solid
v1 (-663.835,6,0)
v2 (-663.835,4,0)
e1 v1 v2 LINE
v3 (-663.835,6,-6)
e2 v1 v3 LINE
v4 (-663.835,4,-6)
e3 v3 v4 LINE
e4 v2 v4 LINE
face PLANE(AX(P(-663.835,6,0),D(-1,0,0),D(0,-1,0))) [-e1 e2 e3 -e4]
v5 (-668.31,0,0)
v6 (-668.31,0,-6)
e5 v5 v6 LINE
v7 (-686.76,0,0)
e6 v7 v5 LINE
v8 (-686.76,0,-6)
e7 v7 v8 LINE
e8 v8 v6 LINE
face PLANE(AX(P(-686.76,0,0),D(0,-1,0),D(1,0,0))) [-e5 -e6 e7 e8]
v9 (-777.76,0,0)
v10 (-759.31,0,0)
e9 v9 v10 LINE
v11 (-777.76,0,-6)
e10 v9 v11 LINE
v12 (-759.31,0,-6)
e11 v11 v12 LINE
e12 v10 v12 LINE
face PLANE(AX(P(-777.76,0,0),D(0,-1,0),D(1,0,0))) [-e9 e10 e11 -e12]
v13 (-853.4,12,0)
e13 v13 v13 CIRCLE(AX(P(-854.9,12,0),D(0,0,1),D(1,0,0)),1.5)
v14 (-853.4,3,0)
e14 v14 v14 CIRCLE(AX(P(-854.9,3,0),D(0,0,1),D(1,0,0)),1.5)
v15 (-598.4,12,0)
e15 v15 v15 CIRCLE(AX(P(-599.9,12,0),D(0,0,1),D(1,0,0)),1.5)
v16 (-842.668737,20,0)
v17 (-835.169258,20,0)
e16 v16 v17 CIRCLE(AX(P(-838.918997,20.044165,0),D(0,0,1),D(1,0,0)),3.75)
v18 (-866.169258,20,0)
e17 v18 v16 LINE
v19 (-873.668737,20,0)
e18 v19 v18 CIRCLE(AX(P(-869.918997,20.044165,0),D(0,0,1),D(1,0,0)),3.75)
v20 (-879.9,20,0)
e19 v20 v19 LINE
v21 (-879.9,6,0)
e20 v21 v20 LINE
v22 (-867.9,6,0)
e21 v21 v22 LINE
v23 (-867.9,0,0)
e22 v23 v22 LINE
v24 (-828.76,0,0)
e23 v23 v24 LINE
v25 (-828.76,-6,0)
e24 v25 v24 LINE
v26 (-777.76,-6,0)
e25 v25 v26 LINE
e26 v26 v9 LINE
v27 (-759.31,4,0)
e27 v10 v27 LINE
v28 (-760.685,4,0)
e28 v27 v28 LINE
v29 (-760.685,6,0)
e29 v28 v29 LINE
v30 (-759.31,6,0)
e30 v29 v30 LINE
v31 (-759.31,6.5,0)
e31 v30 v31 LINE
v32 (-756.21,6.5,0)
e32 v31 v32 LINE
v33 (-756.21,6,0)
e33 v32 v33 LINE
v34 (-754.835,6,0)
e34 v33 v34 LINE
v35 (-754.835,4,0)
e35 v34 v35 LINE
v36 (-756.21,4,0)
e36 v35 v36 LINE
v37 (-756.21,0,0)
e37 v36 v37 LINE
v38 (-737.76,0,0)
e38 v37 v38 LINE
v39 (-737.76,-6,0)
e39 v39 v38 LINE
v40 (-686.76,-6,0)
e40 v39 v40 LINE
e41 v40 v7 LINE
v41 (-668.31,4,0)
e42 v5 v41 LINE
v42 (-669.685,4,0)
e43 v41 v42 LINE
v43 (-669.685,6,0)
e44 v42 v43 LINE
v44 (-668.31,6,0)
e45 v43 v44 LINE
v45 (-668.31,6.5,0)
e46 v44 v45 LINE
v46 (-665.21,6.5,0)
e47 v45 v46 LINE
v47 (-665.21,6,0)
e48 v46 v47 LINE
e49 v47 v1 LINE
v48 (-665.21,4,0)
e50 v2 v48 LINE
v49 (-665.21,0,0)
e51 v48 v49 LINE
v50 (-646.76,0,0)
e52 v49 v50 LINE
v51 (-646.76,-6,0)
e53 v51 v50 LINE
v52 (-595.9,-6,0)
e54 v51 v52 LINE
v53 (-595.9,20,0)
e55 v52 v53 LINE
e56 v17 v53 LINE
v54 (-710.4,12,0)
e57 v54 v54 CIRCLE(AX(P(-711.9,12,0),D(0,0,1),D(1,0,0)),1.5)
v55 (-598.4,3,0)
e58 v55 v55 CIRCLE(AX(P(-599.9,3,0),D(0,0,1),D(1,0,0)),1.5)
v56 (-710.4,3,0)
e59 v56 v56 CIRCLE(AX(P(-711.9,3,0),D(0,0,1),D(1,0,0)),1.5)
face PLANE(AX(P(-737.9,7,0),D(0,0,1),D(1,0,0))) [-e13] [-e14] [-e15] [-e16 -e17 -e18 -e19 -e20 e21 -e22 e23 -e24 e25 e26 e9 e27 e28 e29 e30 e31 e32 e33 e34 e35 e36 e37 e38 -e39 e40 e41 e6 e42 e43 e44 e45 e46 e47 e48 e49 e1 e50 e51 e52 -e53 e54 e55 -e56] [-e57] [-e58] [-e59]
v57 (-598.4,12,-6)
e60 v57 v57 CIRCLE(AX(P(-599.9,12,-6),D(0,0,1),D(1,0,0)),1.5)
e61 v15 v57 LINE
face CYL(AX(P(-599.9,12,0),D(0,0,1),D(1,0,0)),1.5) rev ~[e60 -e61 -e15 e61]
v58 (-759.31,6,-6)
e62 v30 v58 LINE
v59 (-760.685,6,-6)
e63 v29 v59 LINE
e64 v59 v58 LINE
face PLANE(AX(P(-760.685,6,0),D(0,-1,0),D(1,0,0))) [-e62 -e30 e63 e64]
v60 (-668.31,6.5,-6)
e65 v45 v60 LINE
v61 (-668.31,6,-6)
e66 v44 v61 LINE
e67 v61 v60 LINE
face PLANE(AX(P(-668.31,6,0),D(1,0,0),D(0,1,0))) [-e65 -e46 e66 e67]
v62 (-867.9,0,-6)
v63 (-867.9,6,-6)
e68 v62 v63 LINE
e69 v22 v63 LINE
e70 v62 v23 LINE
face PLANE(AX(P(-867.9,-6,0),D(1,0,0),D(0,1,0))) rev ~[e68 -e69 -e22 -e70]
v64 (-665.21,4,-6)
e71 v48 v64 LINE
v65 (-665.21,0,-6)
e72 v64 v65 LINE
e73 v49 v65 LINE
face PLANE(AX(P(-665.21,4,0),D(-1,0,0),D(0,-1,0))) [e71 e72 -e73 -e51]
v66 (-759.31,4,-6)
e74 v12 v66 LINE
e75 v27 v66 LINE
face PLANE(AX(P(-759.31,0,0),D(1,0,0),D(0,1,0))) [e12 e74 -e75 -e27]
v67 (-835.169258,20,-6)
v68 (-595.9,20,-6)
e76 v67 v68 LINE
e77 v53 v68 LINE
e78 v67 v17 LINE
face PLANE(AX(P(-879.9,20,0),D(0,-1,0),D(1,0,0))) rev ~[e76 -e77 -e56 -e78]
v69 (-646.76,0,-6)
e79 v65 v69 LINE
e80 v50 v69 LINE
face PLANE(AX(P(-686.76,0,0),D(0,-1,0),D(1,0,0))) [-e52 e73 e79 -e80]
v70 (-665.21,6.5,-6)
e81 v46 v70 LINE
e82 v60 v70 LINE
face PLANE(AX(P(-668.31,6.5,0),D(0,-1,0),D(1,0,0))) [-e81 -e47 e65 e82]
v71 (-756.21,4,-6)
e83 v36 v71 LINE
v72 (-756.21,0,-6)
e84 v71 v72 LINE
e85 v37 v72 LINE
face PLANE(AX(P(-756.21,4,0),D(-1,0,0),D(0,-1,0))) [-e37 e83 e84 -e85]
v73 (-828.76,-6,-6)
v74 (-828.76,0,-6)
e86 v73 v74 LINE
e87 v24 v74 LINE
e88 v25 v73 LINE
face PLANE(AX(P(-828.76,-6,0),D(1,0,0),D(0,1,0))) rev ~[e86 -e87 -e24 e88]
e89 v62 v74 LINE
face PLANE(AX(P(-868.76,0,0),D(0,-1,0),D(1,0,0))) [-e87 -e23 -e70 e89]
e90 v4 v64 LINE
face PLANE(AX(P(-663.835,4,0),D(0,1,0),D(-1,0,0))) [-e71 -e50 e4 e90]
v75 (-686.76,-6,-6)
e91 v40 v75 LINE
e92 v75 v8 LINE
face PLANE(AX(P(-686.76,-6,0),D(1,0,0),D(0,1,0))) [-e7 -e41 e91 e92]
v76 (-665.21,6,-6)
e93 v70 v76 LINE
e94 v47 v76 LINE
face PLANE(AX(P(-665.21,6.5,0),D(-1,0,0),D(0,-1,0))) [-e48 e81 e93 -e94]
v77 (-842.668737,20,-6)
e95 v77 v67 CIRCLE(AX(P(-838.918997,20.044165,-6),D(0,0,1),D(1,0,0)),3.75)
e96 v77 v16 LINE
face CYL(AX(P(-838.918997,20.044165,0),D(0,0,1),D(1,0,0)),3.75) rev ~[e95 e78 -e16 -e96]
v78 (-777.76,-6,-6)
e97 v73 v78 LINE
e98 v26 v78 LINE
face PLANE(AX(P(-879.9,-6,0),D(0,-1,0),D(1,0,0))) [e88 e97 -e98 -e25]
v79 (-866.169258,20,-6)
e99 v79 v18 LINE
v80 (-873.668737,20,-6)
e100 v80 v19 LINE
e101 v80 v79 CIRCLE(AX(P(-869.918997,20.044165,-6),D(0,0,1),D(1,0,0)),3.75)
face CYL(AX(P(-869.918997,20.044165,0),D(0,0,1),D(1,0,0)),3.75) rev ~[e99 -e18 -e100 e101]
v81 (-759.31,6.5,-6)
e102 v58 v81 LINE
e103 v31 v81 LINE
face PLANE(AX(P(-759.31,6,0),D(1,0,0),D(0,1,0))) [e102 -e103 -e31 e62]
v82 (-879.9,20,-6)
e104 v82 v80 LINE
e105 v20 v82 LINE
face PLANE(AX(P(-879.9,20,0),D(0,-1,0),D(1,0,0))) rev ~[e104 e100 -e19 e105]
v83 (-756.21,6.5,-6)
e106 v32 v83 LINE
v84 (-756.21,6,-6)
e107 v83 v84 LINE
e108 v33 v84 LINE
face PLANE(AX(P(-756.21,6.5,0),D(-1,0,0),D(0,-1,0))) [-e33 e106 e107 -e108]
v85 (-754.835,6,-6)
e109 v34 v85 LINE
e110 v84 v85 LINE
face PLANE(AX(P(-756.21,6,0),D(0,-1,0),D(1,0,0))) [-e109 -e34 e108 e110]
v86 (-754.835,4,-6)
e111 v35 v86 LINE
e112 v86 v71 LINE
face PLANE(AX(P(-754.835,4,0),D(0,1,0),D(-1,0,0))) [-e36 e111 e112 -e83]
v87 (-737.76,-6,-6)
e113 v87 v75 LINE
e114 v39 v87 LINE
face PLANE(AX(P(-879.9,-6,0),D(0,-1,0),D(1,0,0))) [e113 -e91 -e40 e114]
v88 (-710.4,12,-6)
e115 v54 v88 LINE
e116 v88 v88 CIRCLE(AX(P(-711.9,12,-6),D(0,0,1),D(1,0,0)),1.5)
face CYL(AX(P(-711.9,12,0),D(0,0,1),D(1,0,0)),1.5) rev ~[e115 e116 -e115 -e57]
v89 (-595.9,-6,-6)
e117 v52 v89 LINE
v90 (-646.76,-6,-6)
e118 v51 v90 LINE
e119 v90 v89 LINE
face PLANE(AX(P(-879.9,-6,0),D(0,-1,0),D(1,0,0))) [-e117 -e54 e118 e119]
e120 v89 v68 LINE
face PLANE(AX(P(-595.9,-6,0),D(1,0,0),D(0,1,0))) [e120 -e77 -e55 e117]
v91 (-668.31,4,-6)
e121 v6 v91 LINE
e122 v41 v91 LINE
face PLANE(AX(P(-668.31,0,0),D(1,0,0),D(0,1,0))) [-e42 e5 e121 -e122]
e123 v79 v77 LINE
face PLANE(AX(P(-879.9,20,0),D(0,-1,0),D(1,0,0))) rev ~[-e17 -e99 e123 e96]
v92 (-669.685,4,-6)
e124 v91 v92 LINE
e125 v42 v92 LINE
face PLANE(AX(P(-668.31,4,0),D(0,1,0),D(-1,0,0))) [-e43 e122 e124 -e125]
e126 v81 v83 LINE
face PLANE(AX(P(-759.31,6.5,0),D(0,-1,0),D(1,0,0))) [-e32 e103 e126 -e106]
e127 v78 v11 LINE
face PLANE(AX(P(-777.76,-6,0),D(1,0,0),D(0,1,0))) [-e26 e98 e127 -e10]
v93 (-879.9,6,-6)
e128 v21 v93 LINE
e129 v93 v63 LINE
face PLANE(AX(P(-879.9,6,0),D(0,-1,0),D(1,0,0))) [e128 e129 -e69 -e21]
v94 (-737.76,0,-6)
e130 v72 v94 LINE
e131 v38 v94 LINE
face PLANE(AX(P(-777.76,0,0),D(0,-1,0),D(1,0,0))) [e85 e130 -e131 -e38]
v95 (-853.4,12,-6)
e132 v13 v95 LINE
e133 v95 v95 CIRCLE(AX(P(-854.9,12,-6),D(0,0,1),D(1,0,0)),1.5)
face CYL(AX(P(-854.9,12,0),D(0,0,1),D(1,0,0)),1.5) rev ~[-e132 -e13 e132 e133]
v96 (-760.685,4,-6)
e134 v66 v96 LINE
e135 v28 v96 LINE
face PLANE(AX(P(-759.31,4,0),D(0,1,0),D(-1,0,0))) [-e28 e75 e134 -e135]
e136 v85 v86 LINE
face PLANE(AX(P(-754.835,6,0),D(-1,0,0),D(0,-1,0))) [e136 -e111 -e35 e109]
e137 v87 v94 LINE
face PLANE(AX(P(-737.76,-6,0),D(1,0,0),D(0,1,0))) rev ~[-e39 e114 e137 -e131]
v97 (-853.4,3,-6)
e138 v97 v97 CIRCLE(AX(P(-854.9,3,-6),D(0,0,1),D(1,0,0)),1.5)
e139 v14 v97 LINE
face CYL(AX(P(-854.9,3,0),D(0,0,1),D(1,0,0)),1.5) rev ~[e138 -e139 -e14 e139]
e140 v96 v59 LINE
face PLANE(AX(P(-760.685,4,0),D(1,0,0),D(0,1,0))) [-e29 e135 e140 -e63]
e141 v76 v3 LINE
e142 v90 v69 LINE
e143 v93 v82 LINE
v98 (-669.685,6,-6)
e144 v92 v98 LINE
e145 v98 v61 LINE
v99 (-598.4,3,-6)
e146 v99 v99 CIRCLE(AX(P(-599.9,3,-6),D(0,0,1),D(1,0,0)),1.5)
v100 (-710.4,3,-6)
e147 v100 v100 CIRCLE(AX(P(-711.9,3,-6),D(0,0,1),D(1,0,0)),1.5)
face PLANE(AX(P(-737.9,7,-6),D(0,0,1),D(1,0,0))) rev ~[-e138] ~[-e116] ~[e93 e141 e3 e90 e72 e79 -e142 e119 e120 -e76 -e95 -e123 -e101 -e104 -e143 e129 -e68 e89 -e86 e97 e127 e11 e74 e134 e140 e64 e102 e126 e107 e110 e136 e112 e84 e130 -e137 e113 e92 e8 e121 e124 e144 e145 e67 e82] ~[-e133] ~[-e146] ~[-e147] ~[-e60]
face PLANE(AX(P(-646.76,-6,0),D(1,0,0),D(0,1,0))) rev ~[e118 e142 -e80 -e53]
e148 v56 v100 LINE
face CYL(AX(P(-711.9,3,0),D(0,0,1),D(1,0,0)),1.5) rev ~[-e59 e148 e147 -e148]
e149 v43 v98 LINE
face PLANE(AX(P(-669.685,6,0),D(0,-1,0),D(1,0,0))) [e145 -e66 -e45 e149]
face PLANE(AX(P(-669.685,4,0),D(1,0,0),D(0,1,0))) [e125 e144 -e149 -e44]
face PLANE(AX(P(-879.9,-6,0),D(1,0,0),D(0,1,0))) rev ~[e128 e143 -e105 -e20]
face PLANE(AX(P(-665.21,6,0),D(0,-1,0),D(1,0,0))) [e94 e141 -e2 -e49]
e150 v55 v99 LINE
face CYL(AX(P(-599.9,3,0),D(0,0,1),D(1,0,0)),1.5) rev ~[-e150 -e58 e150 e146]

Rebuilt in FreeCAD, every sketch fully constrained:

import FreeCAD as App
import Part
import Sketcher

V = App.Vector
Q = App.Units.Quantity


def add_polygon(sketch, points):
    """Adds a closed chain of lines whose ends are joined by coincident constraints."""
    first, n = sketch.GeometryCount, len(points)
    for a, b in zip(points, points[1:] + points[:1]):
        sketch.addGeometry(Part.LineSegment(App.Vector(*a, 0), App.Vector(*b, 0)), False)
    for i in range(n):
        sketch.addConstraint(Sketcher.Constraint("Coincident", first + i, 2, first + (i + 1) % n, 1))

doc = App.newDocument("Part")
params = doc.addObject("Spreadsheet::Sheet", "Params")
for row, (alias, value) in enumerate([
    ("sketch1_width", "284 mm"),
    ("sketch1_height", "26 mm"),
    ("pad1_length", "6 mm"),
    ("sketch2_width", "40 mm"),
    ("sketch2_height", "6 mm"),
    ("pocket1_length", "6 mm"),
    ("linearpattern_pitch", "91 mm"),
    ("sketch3_height", "4 mm"),
    ("sketch3_height2", "2 mm"),
    ("sketch3_width", "3.1 mm"),
    ("sketch3_height3", "0.5 mm"),
    ("pocket2_length", "6 mm"),
    ("linearpattern2_pitch", "91 mm"),
    ("sketch4_width", "12 mm"),
    ("pocket3_length", "10 mm"),
    ("sketch5_diameter", "3 mm"),
    ("pocket4_length", "10 mm"),
    ("sketch6_diameter", "7.5 mm"),
    ("pocket5_length", "6 mm"),
], start=1):
    params.set(f"A{row}", alias)
    params.set(f"B{row}", "=" + value)
    params.setAlias(f"B{row}", alias)

body = doc.addObject("PartDesign::Body", "Body")

# Sketch on XY plane
sketch1 = body.newObject("Sketcher::SketchObject", "Sketch")
sketch1.AttachmentSupport = (doc.getObject("XY_Plane"), [""])
sketch1.MapMode = "FlatFace"
add_polygon(sketch1, [(-880, 20), (-880, -6), (-596, -6), (-596, 20)])  # lines 0-3
sketch1.addConstraint([
    Sketcher.Constraint("Vertical", 0),
    Sketcher.Constraint("Horizontal", 1),
    Sketcher.Constraint("Vertical", 2),
    Sketcher.Constraint("Horizontal", 3),
    Sketcher.Constraint("DistanceX", 1, 1, 1, 2, Q("284 mm")),
    Sketcher.Constraint("DistanceY", 0, 2, 0, 1, Q("26 mm")),
    Sketcher.Constraint("DistanceY", 0, 2, -1, 1, Q("6 mm")),
    Sketcher.Constraint("DistanceX", 0, 2, -1, 1, Q("879.9 mm")),
])
sketch1.setExpression("Constraints[8]", "Params.sketch1_width")
sketch1.setExpression("Constraints[9]", "Params.sketch1_height")
pad1 = body.newObject("PartDesign::Pad", "Pad")
pad1.Profile = sketch1
pad1.setExpression("Length", "Params.pad1_length")
pad1.Reversed = True

# Sketch on XY plane
sketch2 = body.newObject("Sketcher::SketchObject", "Sketch001")
sketch2.AttachmentSupport = (doc.getObject("XY_Plane"), [""])
sketch2.MapMode = "FlatFace"
add_polygon(sketch2, [(-687, 0), (-687, -6), (-647, -6), (-647, 0)])  # lines 0-3
sketch2.addConstraint([
    Sketcher.Constraint("Vertical", 0),
    Sketcher.Constraint("Horizontal", 1),
    Sketcher.Constraint("Vertical", 2),
    Sketcher.Constraint("Horizontal", 3),
    Sketcher.Constraint("PointOnObject", 2, 2, -1),
    Sketcher.Constraint("DistanceX", 1, 1, 1, 2, Q("40 mm")),
    Sketcher.Constraint("DistanceY", 0, 2, 0, 1, Q("6 mm")),
    Sketcher.Constraint("DistanceX", 0, 2, -1, 1, Q("686.76 mm")),
])
sketch2.setExpression("Constraints[9]", "Params.sketch2_width")
sketch2.setExpression("Constraints[10]", "Params.sketch2_height")
pocket1 = body.newObject("PartDesign::Pocket", "Pocket")
pocket1.Profile = sketch2
pocket1.setExpression("Length", "Params.pocket1_length")
doc.recompute()

linearpattern = body.newObject("PartDesign::LinearPattern", "LinearPattern")
linearpattern.Originals = [pocket1]
linearpattern.Direction = (doc.getObject("X_Axis"), [""])
linearpattern.Mode = "offset"
linearpattern.setExpression("Offset", "Params.linearpattern_pitch")
linearpattern.Occurrences = 4
linearpattern.Reversed = True
body.Tip = linearpattern

# Sketch on XY plane
sketch3 = body.newObject("Sketcher::SketchObject", "Sketch002")
sketch3.AttachmentSupport = (doc.getObject("XY_Plane"), [""])
sketch3.MapMode = "FlatFace"
add_polygon(sketch3, [(-668.3, 0), (-665.2, 0), (-665.2, 4), (-663.8, 4), (-663.8, 6), (-665.2, 6), (-665.2, 6.5), (-668.3, 6.5), (-668.3, 6), (-669.7, 6), (-669.7, 4), (-668.3, 4)])  # lines 0-11
sketch3.addConstraint([
    Sketcher.Constraint("Horizontal", 0),
    Sketcher.Constraint("Vertical", 1),
    Sketcher.Constraint("Horizontal", 2),
    Sketcher.Constraint("Vertical", 3),
    Sketcher.Constraint("Horizontal", 4),
    Sketcher.Constraint("Vertical", 5),
    Sketcher.Constraint("Horizontal", 6),
    Sketcher.Constraint("Vertical", 7),
    Sketcher.Constraint("Horizontal", 8),
    Sketcher.Constraint("Vertical", 9),
    Sketcher.Constraint("Horizontal", 10),
    Sketcher.Constraint("Vertical", 11),
    Sketcher.Constraint("PointOnObject", 0, 2, -1),
    Sketcher.Constraint("Horizontal", 4, 2, 7, 2),
    Sketcher.Constraint("Horizontal", 2, 2, 9, 2),
    Sketcher.Constraint("Vertical", 1, 2, 4, 2),
    Sketcher.Constraint("Vertical", 7, 2, 10, 2),
    Sketcher.Constraint("Equal", 4, 8),
    Sketcher.Constraint("DistanceY", 1, 1, 1, 2, Q("4 mm")),
    Sketcher.Constraint("DistanceY", 3, 1, 3, 2, Q("2 mm")),
    Sketcher.Constraint("DistanceX", 0, 1, 0, 2, Q("3.1 mm")),
    Sketcher.Constraint("DistanceY", 5, 1, 5, 2, Q("0.5 mm")),
    Sketcher.Constraint("DistanceX", 2, 1, 2, 2, Q("1.375 mm")),
    Sketcher.Constraint("DistanceX", 0, 2, -1, 1, Q("665.21 mm")),
])
sketch3.setExpression("Constraints[30]", "Params.sketch3_height")
sketch3.setExpression("Constraints[31]", "Params.sketch3_height2")
sketch3.setExpression("Constraints[32]", "Params.sketch3_width")
sketch3.setExpression("Constraints[33]", "Params.sketch3_height3")
pocket2 = body.newObject("PartDesign::Pocket", "Pocket001")
pocket2.Profile = sketch3
pocket2.setExpression("Length", "Params.pocket2_length")
doc.recompute()

linearpattern2 = body.newObject("PartDesign::LinearPattern", "LinearPattern001")
linearpattern2.Originals = [pocket2]
linearpattern2.Direction = (doc.getObject("X_Axis"), [""])
linearpattern2.Mode = "offset"
linearpattern2.setExpression("Offset", "Params.linearpattern2_pitch")
linearpattern2.Occurrences = 2
linearpattern2.Reversed = True
body.Tip = linearpattern2

# Sketch on XY plane
sketch4 = body.newObject("Sketcher::SketchObject", "Sketch003")
sketch4.AttachmentSupport = (doc.getObject("XY_Plane"), [""])
sketch4.MapMode = "FlatFace"
add_polygon(sketch4, [(-880, 6), (-880, -6), (-868, -6), (-868, 6)])  # lines 0-3
sketch4.addConstraint([
    Sketcher.Constraint("Vertical", 0),
    Sketcher.Constraint("Horizontal", 1),
    Sketcher.Constraint("Vertical", 2),
    Sketcher.Constraint("Horizontal", 3),
    Sketcher.Constraint("Equal", 3, 0),
    Sketcher.Constraint("DistanceX", 1, 1, 1, 2, Q("12 mm")),
    Sketcher.Constraint("DistanceY", 0, 2, -1, 1, Q("6 mm")),
    Sketcher.Constraint("DistanceX", 0, 2, -1, 1, Q("879.9 mm")),
])
sketch4.setExpression("Constraints[9]", "Params.sketch4_width")
pocket3 = body.newObject("PartDesign::Pocket", "Pocket002")
pocket3.Profile = sketch4
pocket3.setExpression("Length", "Params.pocket3_length")

# Sketch on XY plane
sketch5 = body.newObject("Sketcher::SketchObject", "Sketch004")
sketch5.AttachmentSupport = (doc.getObject("XY_Plane"), [""])
sketch5.MapMode = "FlatFace"
sketch5.addGeometry([
    Part.Circle(V(-599.9, 3, 0), V(0, 0, 1), 1.5),  # 0
    Part.Circle(V(-599.9, 12, 0), V(0, 0, 1), 1.5),  # 1
    Part.Circle(V(-854.9, 3, 0), V(0, 0, 1), 1.5),  # 2
    Part.Circle(V(-854.9, 12, 0), V(0, 0, 1), 1.5),  # 3
    Part.Circle(V(-711.9, 3, 0), V(0, 0, 1), 1.5),  # 4
    Part.Circle(V(-711.9, 12, 0), V(0, 0, 1), 1.5),  # 5
], False)
sketch5.addConstraint([
    Sketcher.Constraint("Equal", 0, 1),
    Sketcher.Constraint("Equal", 1, 2),
    Sketcher.Constraint("Equal", 2, 3),
    Sketcher.Constraint("Equal", 3, 4),
    Sketcher.Constraint("Equal", 4, 5),
    Sketcher.Constraint("Horizontal", 0, 3, 2, 3),
    Sketcher.Constraint("Horizontal", 1, 3, 3, 3),
    Sketcher.Constraint("Horizontal", 2, 3, 4, 3),
    Sketcher.Constraint("Horizontal", 3, 3, 5, 3),
    Sketcher.Constraint("Vertical", 0, 3, 1, 3),
    Sketcher.Constraint("Vertical", 2, 3, 3, 3),
    Sketcher.Constraint("Vertical", 4, 3, 5, 3),
    Sketcher.Constraint("Diameter", 0, Q("3 mm")),
    Sketcher.Constraint("DistanceY", -1, 1, 0, 3, Q("3 mm")),
    Sketcher.Constraint("DistanceY", -1, 1, 1, 3, Q("12 mm")),
    Sketcher.Constraint("DistanceX", 2, 3, 0, 3, Q("255 mm")),
    Sketcher.Constraint("DistanceX", 4, 3, 0, 3, Q("112 mm")),
    Sketcher.Constraint("DistanceX", 0, 3, -1, 1, Q("599.9 mm")),
])
sketch5.setExpression("Constraints[12]", "Params.sketch5_diameter")
pocket4 = body.newObject("PartDesign::Pocket", "Pocket003")
pocket4.Profile = sketch5
pocket4.setExpression("Length", "Params.pocket4_length")

# Sketch on XY plane
sketch6 = body.newObject("Sketcher::SketchObject", "Sketch005")
sketch6.AttachmentSupport = (doc.getObject("XY_Plane"), [""])
sketch6.MapMode = "FlatFace"
sketch6.addGeometry([
    Part.Circle(V(-838.9, 20, 0), V(0, 0, 1), 3.8),
    Part.Circle(V(-869.9, 20, 0), V(0, 0, 1), 3.8),
], False)
sketch6.addConstraint([
    Sketcher.Constraint("Equal", 0, 1),
    Sketcher.Constraint("Horizontal", 0, 3, 1, 3),
    Sketcher.Constraint("Diameter", 0, Q("7.5 mm")),
    Sketcher.Constraint("DistanceX", 1, 3, 0, 3, Q("31 mm")),
    Sketcher.Constraint("DistanceX", 0, 3, -1, 1, Q("838.918997 mm")),
    Sketcher.Constraint("DistanceY", -1, 1, 0, 3, Q("20.044165 mm")),
])
sketch6.setExpression("Constraints[2]", "Params.sketch6_diameter")
pocket5 = body.newObject("PartDesign::Pocket", "Pocket004")
pocket5.Profile = sketch6
pocket5.setExpression("Length", "Params.pocket5_length")

doc.recompute()
